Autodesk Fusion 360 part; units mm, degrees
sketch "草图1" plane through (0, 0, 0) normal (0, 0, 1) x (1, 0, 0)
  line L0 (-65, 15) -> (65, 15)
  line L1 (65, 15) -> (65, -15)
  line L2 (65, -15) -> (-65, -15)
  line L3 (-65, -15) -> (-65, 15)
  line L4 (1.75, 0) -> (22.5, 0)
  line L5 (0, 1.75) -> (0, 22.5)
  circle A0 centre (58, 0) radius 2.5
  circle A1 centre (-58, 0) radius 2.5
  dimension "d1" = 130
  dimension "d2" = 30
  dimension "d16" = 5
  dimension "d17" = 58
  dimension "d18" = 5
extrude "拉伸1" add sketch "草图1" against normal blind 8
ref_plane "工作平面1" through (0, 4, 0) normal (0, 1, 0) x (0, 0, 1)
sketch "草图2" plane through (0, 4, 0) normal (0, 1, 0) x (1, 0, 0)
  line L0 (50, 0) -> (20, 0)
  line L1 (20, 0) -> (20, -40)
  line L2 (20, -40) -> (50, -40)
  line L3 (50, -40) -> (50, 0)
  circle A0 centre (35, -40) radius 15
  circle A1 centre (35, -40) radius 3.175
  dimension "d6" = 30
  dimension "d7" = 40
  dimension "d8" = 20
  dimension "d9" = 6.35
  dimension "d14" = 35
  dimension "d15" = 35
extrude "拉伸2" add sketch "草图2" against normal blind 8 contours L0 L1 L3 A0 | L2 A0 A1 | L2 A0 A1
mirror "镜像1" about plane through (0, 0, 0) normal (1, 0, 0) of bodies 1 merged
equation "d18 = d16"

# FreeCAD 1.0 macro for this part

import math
import FreeCAD as App
import Part
import Sketcher

doc = App.newDocument("Part")
body = doc.addObject("PartDesign::Body", "Body")

# Sketch on XY plane
sketch1 = doc.addObject("Sketcher::SketchObject", "Sketch")
body.addObject(sketch1)
sketch1.AttachmentSupport = (doc.XY_Plane, [""])
sketch1.MapMode = "FlatFace"
sketch1.addGeometry([
    Part.LineSegment(App.Vector(65, 15, 0), App.Vector(-65, 15, 0)),  # 0
    Part.LineSegment(App.Vector(-65, 15, 0), App.Vector(-65, -15, 0)),  # 1
    Part.LineSegment(App.Vector(-65, -15, 0), App.Vector(65, -15, 0)),  # 2
    Part.LineSegment(App.Vector(65, -15, 0), App.Vector(65, 15, 0)),  # 3
    Part.Circle(App.Vector(-58, 0, 0), App.Vector(0, 0, 1), 2.5),  # 4
    Part.Circle(App.Vector(58, 0, 0), App.Vector(0, 0, 1), 2.5),  # 5
], False)
sketch1.addConstraint([
    Sketcher.Constraint("Coincident", 0, 2, 1, 1),
    Sketcher.Constraint("Coincident", 1, 2, 2, 1),
    Sketcher.Constraint("Coincident", 2, 2, 3, 1),
    Sketcher.Constraint("Coincident", 3, 2, 0, 1),
    Sketcher.Constraint("Horizontal", 0),
    Sketcher.Constraint("Vertical", 1),
    Sketcher.Constraint("Horizontal", 2),
    Sketcher.Constraint("Vertical", 3),
    Sketcher.Constraint("Equal", 4, 5),
    Sketcher.Constraint("Symmetric", 4, 3, 5, 3, -1, 1),
    Sketcher.Constraint("Symmetric", 0, 2, 2, 2, -1, 1),
    Sketcher.Constraint("PointOnObject", 4, 3, -1),
    Sketcher.Constraint("Diameter", 4, 5.0),
    Sketcher.Constraint("DistanceX", 0, 2, 0, 1, 130.0),
    Sketcher.Constraint("DistanceY", 1, 2, 1, 1, 30.0),
    Sketcher.Constraint("DistanceX", 4, 3, -1, 1, 58.0),
])
pad1 = doc.addObject("PartDesign::Pad", "Pad")
body.addObject(pad1)
pad1.Profile = sketch1
pad1.Length = 8
pad1.Reversed = True

# Sketch on XZ plane
sketch2 = doc.addObject("Sketcher::SketchObject", "Sketch001")
body.addObject(sketch2)
sketch2.AttachmentSupport = (doc.XZ_Plane, [""])
sketch2.MapMode = "FlatFace"
sketch2.AttachmentOffset = App.Placement(App.Vector(0, 0, -4), App.Rotation())
sketch2.addGeometry([
    Part.LineSegment(App.Vector(50, 40, 0), App.Vector(50, 0, 0)),  # 0
    Part.LineSegment(App.Vector(50, 0, 0), App.Vector(20, 0, 0)),  # 1
    Part.LineSegment(App.Vector(20, 0, 0), App.Vector(20, 40, 0)),  # 2
    Part.ArcOfCircle(Part.Circle(App.Vector(35, 40, 0), App.Vector(0, 0, 1), 15), math.radians(0), math.radians(180)),  # 3
    Part.Circle(App.Vector(35, 40, 0), App.Vector(0, 0, 1), 3.2),  # 4
], False)
sketch2.addConstraint([
    Sketcher.Constraint("Coincident", 0, 2, 1, 1),
    Sketcher.Constraint("Coincident", 1, 2, 2, 1),
    Sketcher.Constraint("Tangent", 2, 2, 3, 2),
    Sketcher.Constraint("Tangent", 3, 1, 0, 1),
    Sketcher.Constraint("Vertical", 0),
    Sketcher.Constraint("Horizontal", 1),
    Sketcher.Constraint("Vertical", 2),
    Sketcher.Constraint("Coincident", 4, 3, 3, 3),
    Sketcher.Constraint("PointOnObject", 0, 2, -1),
    Sketcher.Constraint("Radius", 3, 15.0),
    Sketcher.Constraint("Diameter", 4, 6.35),
    Sketcher.Constraint("DistanceY", 0, 2, 0, 1, 40.0),
    Sketcher.Constraint("DistanceX", -1, 1, 3, 3, 35.0),
])
pad2 = doc.addObject("PartDesign::Pad", "Pad001")
body.addObject(pad2)
pad2.Profile = sketch2
pad2.Length = 8
doc.recompute()

mirrored = doc.addObject("PartDesign::Mirrored", "Mirrored")
body.addObject(mirrored)
mirrored.TransformMode = "Transform body"
mirrored.MirrorPlane = (doc.YZ_Plane, [""])
body.Tip = mirrored

doc.recompute()
